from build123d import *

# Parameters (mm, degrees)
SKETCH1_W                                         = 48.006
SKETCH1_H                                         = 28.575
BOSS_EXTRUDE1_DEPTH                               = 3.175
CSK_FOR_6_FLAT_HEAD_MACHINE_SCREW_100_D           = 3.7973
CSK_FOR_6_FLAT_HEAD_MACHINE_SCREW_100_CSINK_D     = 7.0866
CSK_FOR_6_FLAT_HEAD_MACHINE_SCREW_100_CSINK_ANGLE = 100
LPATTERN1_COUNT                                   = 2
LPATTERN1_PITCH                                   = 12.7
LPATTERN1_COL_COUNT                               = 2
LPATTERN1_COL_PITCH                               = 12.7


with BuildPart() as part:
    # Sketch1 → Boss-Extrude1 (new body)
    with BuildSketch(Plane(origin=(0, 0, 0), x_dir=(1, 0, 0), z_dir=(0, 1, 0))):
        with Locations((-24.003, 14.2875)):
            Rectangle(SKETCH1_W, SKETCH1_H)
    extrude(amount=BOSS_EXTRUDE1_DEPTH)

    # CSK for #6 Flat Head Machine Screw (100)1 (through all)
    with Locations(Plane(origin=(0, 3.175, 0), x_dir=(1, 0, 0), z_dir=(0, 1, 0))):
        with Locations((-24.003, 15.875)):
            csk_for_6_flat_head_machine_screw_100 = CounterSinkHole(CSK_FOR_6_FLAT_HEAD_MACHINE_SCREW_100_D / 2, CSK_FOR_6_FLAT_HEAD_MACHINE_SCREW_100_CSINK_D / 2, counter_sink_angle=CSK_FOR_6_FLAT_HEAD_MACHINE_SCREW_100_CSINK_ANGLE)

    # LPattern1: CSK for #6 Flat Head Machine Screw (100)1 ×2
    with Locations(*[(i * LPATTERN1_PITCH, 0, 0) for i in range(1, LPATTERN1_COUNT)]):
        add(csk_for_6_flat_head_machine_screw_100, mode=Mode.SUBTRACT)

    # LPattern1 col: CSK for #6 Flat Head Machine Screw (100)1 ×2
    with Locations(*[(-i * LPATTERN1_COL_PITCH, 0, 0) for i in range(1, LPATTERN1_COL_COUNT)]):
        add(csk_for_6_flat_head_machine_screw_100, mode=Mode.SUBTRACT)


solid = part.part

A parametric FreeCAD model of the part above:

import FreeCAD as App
import Part
import Sketcher
from FreeCAD import Vector
Q = App.Units.Quantity

doc = App.newDocument("Part")
params = doc.addObject("Spreadsheet::Sheet", "Params")
for row, (alias, value) in enumerate([
    ("sketch1_width", "1.89 in"),
    ("sketch1_height", "1.125 in"),
    ("pad1_length", "0.125 in"),
    ("hole_diameter", "0.1495 in"),
    ("hole_csink_diameter", "0.279 in"),
    ("linearpattern_pitch", "0.5 in"),
    ("linearpattern2_pitch", "0.5 in"),
], start=1):
    params.set(f"A{row}", alias)
    params.set(f"B{row}", "=" + value)
    params.setAlias(f"B{row}", alias)

body = doc.addObject("PartDesign::Body", "Body")

sketch1 = body.newObject("Sketcher::SketchObject", "Sketch")
sketch1.AttachmentSupport = (doc.getObject("XZ_Plane"), [""])
sketch1.MapMode = "FlatFace"
sketch1.addGeometry(Part.LineSegment(Vector(-48.006, -28.575, 0), Vector(-48.006, 0, 0)), False)
sketch1.addGeometry(Part.LineSegment(Vector(-48.006, 0, 0), Vector(0, 0, 0)), False)
sketch1.addGeometry(Part.LineSegment(Vector(0, 0, 0), Vector(0, -28.575, 0)), False)
sketch1.addGeometry(Part.LineSegment(Vector(0, -28.575, 0), Vector(-48.006, -28.575, 0)), False)
sketch1.addConstraint(Sketcher.Constraint("Coincident", 0, 2, 1, 1))
sketch1.addConstraint(Sketcher.Constraint("Coincident", 1, 2, 2, 1))
sketch1.addConstraint(Sketcher.Constraint("Coincident", 2, 2, 3, 1))
sketch1.addConstraint(Sketcher.Constraint("Coincident", 3, 2, 0, 1))
sketch1.addConstraint(Sketcher.Constraint("Vertical", 0))
sketch1.addConstraint(Sketcher.Constraint("Horizontal", 1))
sketch1.addConstraint(Sketcher.Constraint("Vertical", 2))
sketch1.addConstraint(Sketcher.Constraint("Horizontal", 3))
sketch1.addConstraint(Sketcher.Constraint("Coincident", 1, 2, -1, 1))
sketch1.addConstraint(Sketcher.Constraint("DistanceX", 1, 1, 1, 2, Q("1.89 in")))
sketch1.addConstraint(Sketcher.Constraint("DistanceY", 0, 1, 0, 2, Q("1.125 in")))
sketch1.setExpression("Constraints[9]", "Params.sketch1_width")
sketch1.setExpression("Constraints[10]", "Params.sketch1_height")
pad1 = body.newObject("PartDesign::Pad", "Pad")
pad1.Profile = sketch1
pad1.setExpression("Length", "Params.pad1_length")
pad1.Reversed = True

sketch2 = body.newObject("Sketcher::SketchObject", "Sketch001")
sketch2.AttachmentSupport = (doc.getObject("XZ_Plane"), [""])
sketch2.MapMode = "FlatFace"
sketch2.AttachmentOffset = App.Placement(Vector(0, 0, -0.125 * 25.4), App.Rotation())
sketch2.addGeometry(Part.Circle(Vector(-24.003, -15.875, 0), Vector(0, 0, 1), 1.89865), False)
sketch2.addConstraint(Sketcher.Constraint("Diameter", 0, Q("0.1495 in")))
sketch2.addConstraint(Sketcher.Constraint("DistanceX", 0, 3, -1, 1, Q("0.945 in")))
sketch2.addConstraint(Sketcher.Constraint("DistanceY", 0, 3, -1, 1, Q("0.625 in")))
doc.recompute()
hole = body.newObject("PartDesign::Hole", "Hole")
hole.Profile = sketch2
hole.ThreadType = "None"
hole.setExpression("Diameter", "Params.hole_diameter")
hole.DepthType = "ThroughAll"
hole.HoleCutType = "Countersink"
hole.setExpression("HoleCutDiameter", "Params.hole_csink_diameter")
hole.HoleCutCountersinkAngle = 100
hole.Reversed = True
doc.recompute()

linearpattern = body.newObject("PartDesign::LinearPattern", "LinearPattern")
linearpattern.Originals = [hole]
linearpattern.Direction = (doc.getObject("X_Axis"), [""])
linearpattern.Mode = "offset"
linearpattern.setExpression("Offset", "Params.linearpattern_pitch")
linearpattern.Occurrences = 2
body.Tip = linearpattern
doc.recompute()

linearpattern2 = body.newObject("PartDesign::LinearPattern", "LinearPattern001")
linearpattern2.Originals = [hole]
linearpattern2.Direction = (doc.getObject("X_Axis"), [""])
linearpattern2.Mode = "offset"
linearpattern2.setExpression("Offset", "Params.linearpattern2_pitch")
linearpattern2.Occurrences = 2
linearpattern2.Reversed = True
body.Tip = linearpattern2

doc.recompute()
